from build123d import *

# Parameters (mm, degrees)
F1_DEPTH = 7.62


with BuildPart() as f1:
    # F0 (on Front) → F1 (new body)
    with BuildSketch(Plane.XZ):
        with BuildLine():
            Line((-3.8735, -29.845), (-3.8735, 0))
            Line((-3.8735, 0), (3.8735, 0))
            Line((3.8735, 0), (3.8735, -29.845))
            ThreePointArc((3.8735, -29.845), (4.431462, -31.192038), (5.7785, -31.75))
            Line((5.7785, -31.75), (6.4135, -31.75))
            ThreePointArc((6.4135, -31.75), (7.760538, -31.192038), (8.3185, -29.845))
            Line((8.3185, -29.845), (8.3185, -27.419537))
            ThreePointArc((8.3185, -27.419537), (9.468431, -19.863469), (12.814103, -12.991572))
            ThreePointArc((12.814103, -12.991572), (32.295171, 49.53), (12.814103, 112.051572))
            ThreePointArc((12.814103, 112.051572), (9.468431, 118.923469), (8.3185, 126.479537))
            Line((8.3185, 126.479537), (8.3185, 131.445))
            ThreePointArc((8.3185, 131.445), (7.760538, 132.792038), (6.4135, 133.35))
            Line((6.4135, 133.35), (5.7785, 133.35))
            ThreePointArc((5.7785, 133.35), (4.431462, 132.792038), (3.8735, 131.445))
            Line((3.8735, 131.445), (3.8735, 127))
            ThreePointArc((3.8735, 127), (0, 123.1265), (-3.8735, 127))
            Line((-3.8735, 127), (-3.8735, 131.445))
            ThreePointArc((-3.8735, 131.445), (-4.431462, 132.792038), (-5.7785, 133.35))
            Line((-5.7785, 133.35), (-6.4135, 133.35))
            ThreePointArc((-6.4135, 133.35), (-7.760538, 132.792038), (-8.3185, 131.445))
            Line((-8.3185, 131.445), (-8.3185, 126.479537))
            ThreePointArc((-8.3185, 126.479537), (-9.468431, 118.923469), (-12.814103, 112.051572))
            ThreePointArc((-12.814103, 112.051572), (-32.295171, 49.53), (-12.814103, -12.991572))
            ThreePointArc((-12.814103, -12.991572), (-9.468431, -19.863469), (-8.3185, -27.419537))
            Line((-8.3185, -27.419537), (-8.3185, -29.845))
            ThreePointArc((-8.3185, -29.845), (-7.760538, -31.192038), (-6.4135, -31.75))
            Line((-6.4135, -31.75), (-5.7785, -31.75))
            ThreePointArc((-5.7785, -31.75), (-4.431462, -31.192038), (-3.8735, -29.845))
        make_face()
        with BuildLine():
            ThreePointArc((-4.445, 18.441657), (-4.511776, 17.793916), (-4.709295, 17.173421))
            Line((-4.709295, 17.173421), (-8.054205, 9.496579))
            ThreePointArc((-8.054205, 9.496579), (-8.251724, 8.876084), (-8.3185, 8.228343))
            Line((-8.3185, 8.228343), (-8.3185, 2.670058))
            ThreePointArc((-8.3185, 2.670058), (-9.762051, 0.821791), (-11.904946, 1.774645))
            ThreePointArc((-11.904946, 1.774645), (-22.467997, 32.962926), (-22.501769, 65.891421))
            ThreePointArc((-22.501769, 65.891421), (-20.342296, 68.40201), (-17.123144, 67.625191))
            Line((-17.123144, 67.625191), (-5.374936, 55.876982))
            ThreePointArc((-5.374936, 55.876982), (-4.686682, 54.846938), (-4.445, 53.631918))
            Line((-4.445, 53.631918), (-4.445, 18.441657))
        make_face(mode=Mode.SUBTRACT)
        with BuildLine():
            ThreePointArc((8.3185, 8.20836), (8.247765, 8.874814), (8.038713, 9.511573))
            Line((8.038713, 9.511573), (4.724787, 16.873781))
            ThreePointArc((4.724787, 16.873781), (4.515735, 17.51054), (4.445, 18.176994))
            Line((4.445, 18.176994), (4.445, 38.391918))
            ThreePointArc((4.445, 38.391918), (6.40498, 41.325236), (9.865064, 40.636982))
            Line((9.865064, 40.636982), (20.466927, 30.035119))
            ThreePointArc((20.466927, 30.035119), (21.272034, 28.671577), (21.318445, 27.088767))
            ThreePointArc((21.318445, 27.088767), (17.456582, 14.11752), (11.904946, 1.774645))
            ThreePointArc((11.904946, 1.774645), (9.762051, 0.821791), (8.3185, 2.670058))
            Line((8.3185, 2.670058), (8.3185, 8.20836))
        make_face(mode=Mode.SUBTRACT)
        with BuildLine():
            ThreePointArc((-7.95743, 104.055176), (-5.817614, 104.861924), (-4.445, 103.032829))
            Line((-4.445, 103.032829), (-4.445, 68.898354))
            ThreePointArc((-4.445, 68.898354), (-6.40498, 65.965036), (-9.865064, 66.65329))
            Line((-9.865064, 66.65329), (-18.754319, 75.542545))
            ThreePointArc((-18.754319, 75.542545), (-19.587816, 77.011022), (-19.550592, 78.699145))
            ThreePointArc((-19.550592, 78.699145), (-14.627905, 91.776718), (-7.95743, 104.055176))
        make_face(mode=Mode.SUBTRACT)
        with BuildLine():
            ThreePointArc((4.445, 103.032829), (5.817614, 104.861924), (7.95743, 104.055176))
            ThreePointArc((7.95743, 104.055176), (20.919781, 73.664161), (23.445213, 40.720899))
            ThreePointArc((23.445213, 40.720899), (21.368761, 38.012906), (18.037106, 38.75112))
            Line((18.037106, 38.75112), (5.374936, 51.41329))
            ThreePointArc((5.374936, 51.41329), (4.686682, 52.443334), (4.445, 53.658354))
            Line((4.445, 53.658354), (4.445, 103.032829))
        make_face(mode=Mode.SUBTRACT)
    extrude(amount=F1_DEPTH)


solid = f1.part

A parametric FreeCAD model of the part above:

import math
import FreeCAD as App
import Part
import Sketcher

V = App.Vector
Q = App.Units.Quantity

doc = App.newDocument("Part")
body = doc.addObject("PartDesign::Body", "Body")

# Sketch on XZ plane
sketch1 = body.newObject("Sketcher::SketchObject", "Sketch")
sketch1.AttachmentSupport = (doc.getObject("XZ_Plane"), [""])
sketch1.MapMode = "FlatFace"
sketch1.addGeometry([
    Part.LineSegment(V(-3.8735, -29.845, 0), V(-3.8735, 0, 0)),  # 0
    Part.LineSegment(V(-3.8735, 0, 0), V(3.8735, 0, 0)),  # 1
    Part.LineSegment(V(3.8735, 0, 0), V(3.8735, -29.845, 0)),  # 2
    Part.ArcOfCircle(Part.Circle(V(5.778501, -29.844999, 0), V(0, 0, 1), 1.905001), math.radians(-179.999957), math.radians(-90.000043)),  # 3
    Part.LineSegment(V(5.7785, -31.75, 0), V(6.4135, -31.75, 0)),  # 4
    Part.ArcOfCircle(Part.Circle(V(6.413499, -29.844999, 0), V(0, 0, 1), 1.905001), math.radians(-89.999957), math.radians(-0.000043)),  # 5
    Part.LineSegment(V(8.3185, -29.845, 0), V(8.3185, -27.419537, 0)),  # 6
    Part.ArcOfCircle(Part.Circle(V(33.718493, -27.419535, 0), V(0, 0, 1), 25.399993), math.radians(145.38702), math.radians(180.000004)),  # 7
    Part.ArcOfCircle(Part.Circle(V(-77.772177, 49.53, 0), V(0, 0, 1), 110.067348), math.radians(-34.612976), math.radians(34.612976)),  # 8
    Part.ArcOfCircle(Part.Circle(V(33.718493, 126.479535, 0), V(0, 0, 1), 25.399993), math.radians(179.999996), math.radians(214.61298)),  # 9
    Part.LineSegment(V(8.3185, 126.479537, 0), V(8.3185, 131.445, 0)),  # 10
    Part.ArcOfCircle(Part.Circle(V(6.413499, 131.444999, 0), V(0, 0, 1), 1.905001), math.radians(0.000043), math.radians(89.999957)),  # 11
    Part.LineSegment(V(6.4135, 133.35, 0), V(5.7785, 133.35, 0)),  # 12
    Part.ArcOfCircle(Part.Circle(V(5.778501, 131.444999, 0), V(0, 0, 1), 1.905001), math.radians(90.000043), math.radians(179.999957)),  # 13
    Part.LineSegment(V(3.8735, 131.445, 0), V(3.8735, 127, 0)),  # 14
    Part.ArcOfCircle(Part.Circle(V(0, 127, 0), V(0, 0, 1), 3.8735), math.radians(180), math.radians(360)),  # 15
    Part.LineSegment(V(-3.8735, 127, 0), V(-3.8735, 131.445, 0)),  # 16
    Part.ArcOfCircle(Part.Circle(V(-5.778501, 131.444999, 0), V(0, 0, 1), 1.905001), math.radians(0.000043), math.radians(89.999957)),  # 17
    Part.LineSegment(V(-5.7785, 133.35, 0), V(-6.4135, 133.35, 0)),  # 18
    Part.ArcOfCircle(Part.Circle(V(-6.413499, 131.444999, 0), V(0, 0, 1), 1.905001), math.radians(90.000043), math.radians(179.999957)),  # 19
    Part.LineSegment(V(-8.3185, 131.445, 0), V(-8.3185, 126.479537, 0)),  # 20
    Part.ArcOfCircle(Part.Circle(V(-33.718493, 126.479535, 0), V(0, 0, 1), 25.399993), math.radians(-34.61298), math.radians(0.000004)),  # 21
    Part.ArcOfCircle(Part.Circle(V(77.772177, 49.53, 0), V(0, 0, 1), 110.067348), math.radians(145.387024), math.radians(214.612976)),  # 22
    Part.ArcOfCircle(Part.Circle(V(-33.718493, -27.419535, 0), V(0, 0, 1), 25.399993), math.radians(-0.000004), math.radians(34.61298)),  # 23
    Part.LineSegment(V(-8.3185, -27.419537, 0), V(-8.3185, -29.845, 0)),  # 24
    Part.ArcOfCircle(Part.Circle(V(-6.413499, -29.844999, 0), V(0, 0, 1), 1.905001), math.radians(-179.999957), math.radians(-90.000043)),  # 25
    Part.LineSegment(V(-6.4135, -31.75, 0), V(-5.7785, -31.75, 0)),  # 26
    Part.ArcOfCircle(Part.Circle(V(-5.778501, -29.844999, 0), V(0, 0, 1), 1.905001), math.radians(-89.999957), math.radians(-0.000043)),  # 27
    Part.LineSegment(V(-4.445, 53.631918, 0), V(-4.445, 18.441657, 0)),  # 28
    Part.ArcOfCircle(Part.Circle(V(-7.620005, 18.441658, 0), V(0, 0, 1), 3.175005), math.radians(-23.543421), math.radians(-0.000012)),  # 29
    Part.LineSegment(V(-4.709295, 17.173421, 0), V(-8.054205, 9.496579, 0)),  # 30
    Part.ArcOfCircle(Part.Circle(V(-5.143495, 8.228342, 0), V(0, 0, 1), 3.175005), math.radians(156.456579), math.radians(179.999988)),  # 31
    Part.LineSegment(V(-8.3185, 8.228343, 0), V(-8.3185, 2.670058, 0)),  # 32
    Part.ArcOfCircle(Part.Circle(V(-10.2235, 2.670058, 0), V(0, 0, 1), 1.905), math.radians(-151.963568), math.radians(0.000011)),  # 33
    Part.ArcOfCircle(Part.Circle(V(77.772168, 49.529999, 0), V(0, 0, 1), 101.599993), math.radians(170.732871), math.radians(208.036441)),  # 34
    Part.ArcOfCircle(Part.Circle(V(-19.368208, 65.380127, 0), V(0, 0, 1), 3.175), math.radians(45.000004), math.radians(170.732874)),  # 35
    Part.LineSegment(V(-17.123144, 67.625191, 0), V(-5.374936, 55.876982, 0)),  # 36
    Part.ArcOfCircle(Part.Circle(V(-7.619994, 53.631921, 0), V(0, 0, 1), 3.174994), math.radians(-0.000045), math.radians(45.000047)),  # 37
    Part.LineSegment(V(8.3185, 2.670058, 0), V(8.3185, 8.20836, 0)),  # 38
    Part.ArcOfCircle(Part.Circle(V(5.143489, 8.208357, 0), V(0, 0, 1), 3.175011), math.radians(0.00006), math.radians(24.233762)),  # 39
    Part.LineSegment(V(8.038713, 9.511573, 0), V(4.724787, 16.873781, 0)),  # 40
    Part.ArcOfCircle(Part.Circle(V(7.620011, 18.176997, 0), V(0, 0, 1), 3.175011), math.radians(-179.99994), math.radians(-155.766238)),  # 41
    Part.LineSegment(V(4.445, 18.176994, 0), V(4.445, 38.391918, 0)),  # 42
    Part.ArcOfCircle(Part.Circle(V(7.62, 38.391919, 0), V(0, 0, 1), 3.175), math.radians(44.999986), math.radians(180.000014)),  # 43
    Part.LineSegment(V(9.865064, 40.636982, 0), V(20.466927, 30.035119, 0)),  # 44
    Part.ArcOfCircle(Part.Circle(V(18.221862, 27.790055, 0), V(0, 0, 1), 3.175001), math.radians(-12.760606), math.radians(44.999993)),  # 45
    Part.ArcOfCircle(Part.Circle(V(-77.772194, 49.530006, 0), V(0, 0, 1), 101.60002), math.radians(-28.036438), math.radians(-12.760625)),  # 46
    Part.ArcOfCircle(Part.Circle(V(10.2235, 2.670058, 0), V(0, 0, 1), 1.905), math.radians(179.999989), math.radians(331.963568)),  # 47
    Part.ArcOfCircle(Part.Circle(V(77.772188, 49.529994, 0), V(0, 0, 1), 101.600014), math.radians(147.543095), math.radians(163.315709)),  # 48
    Part.ArcOfCircle(Part.Circle(V(-6.35, 103.032828, 0), V(0, 0, 1), 1.905), math.radians(0.000015), math.radians(147.543079)),  # 49
    Part.LineSegment(V(-4.445, 103.032829, 0), V(-4.445, 68.898354, 0)),  # 50
    Part.ArcOfCircle(Part.Circle(V(-7.62, 68.898353, 0), V(0, 0, 1), 3.175), math.radians(-135.000014), math.radians(0.000014)),  # 51
    Part.LineSegment(V(-9.865064, 66.65329, 0), V(-18.754319, 75.542545, 0)),  # 52
    Part.ArcOfCircle(Part.Circle(V(-16.509254, 77.78761, 0), V(0, 0, 1), 3.175002), math.radians(163.315733), math.radians(224.999994)),  # 53
    Part.LineSegment(V(4.445, 53.658354, 0), V(4.445, 103.032829, 0)),  # 54
    Part.ArcOfCircle(Part.Circle(V(6.35, 103.032828, 0), V(0, 0, 1), 1.905), math.radians(32.456921), math.radians(179.999985)),  # 55
    Part.ArcOfCircle(Part.Circle(V(-77.772178, 49.53, 0), V(0, 0, 1), 101.600003), math.radians(-4.974004), math.radians(32.456905)),  # 56
    Part.ArcOfCircle(Part.Circle(V(20.28217, 40.996183, 0), V(0, 0, 1), 3.174999), math.radians(-135.000016), math.radians(-4.973997)),  # 57
    Part.LineSegment(V(18.037106, 38.75112, 0), V(5.374936, 51.41329, 0)),  # 58
    Part.ArcOfCircle(Part.Circle(V(7.619994, 53.658351, 0), V(0, 0, 1), 3.174994), math.radians(179.999955), math.radians(225.000047)),  # 59
], False)
sketch1.addConstraint([
    Sketcher.Constraint("Coincident", 0, 2, 1, 1),
    Sketcher.Constraint("Coincident", 1, 2, 2, 1),
    Sketcher.Constraint("Coincident", 2, 2, 3, 1),
    Sketcher.Constraint("Coincident", 3, 2, 4, 1),
    Sketcher.Constraint("Coincident", 4, 2, 5, 1),
    Sketcher.Constraint("Coincident", 5, 2, 6, 1),
    Sketcher.Constraint("Coincident", 6, 2, 7, 2),
    Sketcher.Constraint("Coincident", 7, 1, 8, 1),
    Sketcher.Constraint("Coincident", 8, 2, 9, 2),
    Sketcher.Constraint("Coincident", 9, 1, 10, 1),
    Sketcher.Constraint("Coincident", 10, 2, 11, 1),
    Sketcher.Constraint("Coincident", 11, 2, 12, 1),
    Sketcher.Constraint("Coincident", 12, 2, 13, 1),
    Sketcher.Constraint("Coincident", 13, 2, 14, 1),
    Sketcher.Constraint("Coincident", 14, 2, 15, 2),
    Sketcher.Constraint("Coincident", 15, 1, 16, 1),
    Sketcher.Constraint("Coincident", 16, 2, 17, 1),
    Sketcher.Constraint("Coincident", 17, 2, 18, 1),
    Sketcher.Constraint("Coincident", 18, 2, 19, 1),
    Sketcher.Constraint("Coincident", 19, 2, 20, 1),
    Sketcher.Constraint("Coincident", 20, 2, 21, 2),
    Sketcher.Constraint("Coincident", 21, 1, 22, 1),
    Sketcher.Constraint("Coincident", 22, 2, 23, 2),
    Sketcher.Constraint("Coincident", 23, 1, 24, 1),
    Sketcher.Constraint("Coincident", 24, 2, 25, 1),
    Sketcher.Constraint("Coincident", 25, 2, 26, 1),
    Sketcher.Constraint("Coincident", 26, 2, 27, 1),
    Sketcher.Constraint("Coincident", 27, 2, 0, 1),
    Sketcher.Constraint("Coincident", 28, 2, 29, 2),
    Sketcher.Constraint("Coincident", 29, 1, 30, 1),
    Sketcher.Constraint("Coincident", 30, 2, 31, 1),
    Sketcher.Constraint("Coincident", 31, 2, 32, 1),
    Sketcher.Constraint("Coincident", 32, 2, 33, 2),
    Sketcher.Constraint("Coincident", 33, 1, 34, 2),
    Sketcher.Constraint("Coincident", 34, 1, 35, 2),
    Sketcher.Constraint("Coincident", 35, 1, 36, 1),
    Sketcher.Constraint("Coincident", 36, 2, 37, 2),
    Sketcher.Constraint("Coincident", 37, 1, 28, 1),
    Sketcher.Constraint("Coincident", 38, 2, 39, 1),
    Sketcher.Constraint("Coincident", 39, 2, 40, 1),
    Sketcher.Constraint("Coincident", 40, 2, 41, 2),
    Sketcher.Constraint("Coincident", 41, 1, 42, 1),
    Sketcher.Constraint("Coincident", 42, 2, 43, 2),
    Sketcher.Constraint("Coincident", 43, 1, 44, 1),
    Sketcher.Constraint("Coincident", 44, 2, 45, 2),
    Sketcher.Constraint("Coincident", 45, 1, 46, 2),
    Sketcher.Constraint("Coincident", 46, 1, 47, 2),
    Sketcher.Constraint("Coincident", 47, 1, 38, 1),
    Sketcher.Constraint("Coincident", 48, 1, 49, 2),
    Sketcher.Constraint("Coincident", 49, 1, 50, 1),
    Sketcher.Constraint("Coincident", 50, 2, 51, 2),
    Sketcher.Constraint("Coincident", 51, 1, 52, 1),
    Sketcher.Constraint("Coincident", 52, 2, 53, 2),
    Sketcher.Constraint("Coincident", 53, 1, 48, 2),
    Sketcher.Constraint("Coincident", 54, 2, 55, 2),
    Sketcher.Constraint("Coincident", 55, 1, 56, 2),
    Sketcher.Constraint("Coincident", 56, 1, 57, 2),
    Sketcher.Constraint("Coincident", 57, 1, 58, 1),
    Sketcher.Constraint("Coincident", 58, 2, 59, 2),
    Sketcher.Constraint("Coincident", 59, 1, 54, 1),
    Sketcher.Constraint("Vertical", 0),
    Sketcher.Constraint("Horizontal", 1),
    Sketcher.Constraint("Vertical", 2),
    Sketcher.Constraint("Horizontal", 4),
    Sketcher.Constraint("Vertical", 6),
    Sketcher.Constraint("Vertical", 10),
    Sketcher.Constraint("Horizontal", 12),
    Sketcher.Constraint("Vertical", 14),
    Sketcher.Constraint("Vertical", 16),
    Sketcher.Constraint("Horizontal", 18),
    Sketcher.Constraint("Vertical", 20),
    Sketcher.Constraint("Vertical", 24),
    Sketcher.Constraint("Horizontal", 26),
    Sketcher.Constraint("Vertical", 28),
    Sketcher.Constraint("Vertical", 32),
    Sketcher.Constraint("Vertical", 38),
    Sketcher.Constraint("Vertical", 42),
    Sketcher.Constraint("Vertical", 50),
    Sketcher.Constraint("Vertical", 54),
    Sketcher.Constraint("Coincident", 34, 3, 22, 3),
    Sketcher.Constraint("Coincident", 56, 3, 8, 3),
    Sketcher.Constraint("PointOnObject", 15, 3, -2),
    Sketcher.Constraint("PointOnObject", 0, 2, -1),
    Sketcher.Constraint("Radius", 56, Q("4.0000001 in")),
    Sketcher.Constraint("DistanceY", -1, 1, 15, 3, Q("5 in")),
    Sketcher.Constraint("DistanceY", -1, 1, 14, 2, Q("5 in")),
    Sketcher.Constraint("DistanceY", -1, 1, 15, 1, Q("5 in")),
    Sketcher.Constraint("Radius", 3, Q("0.0750001 in")),
    Sketcher.Constraint("Radius", 5, Q("0.0750001 in")),
    Sketcher.Constraint("Radius", 11, Q("0.0750001 in")),
    Sketcher.Constraint("Radius", 13, Q("0.0750001 in")),
    Sketcher.Constraint("Radius", 17, Q("0.0750001 in")),
    Sketcher.Constraint("Radius", 19, Q("0.0750001 in")),
    Sketcher.Constraint("Radius", 25, Q("0.0750001 in")),
    Sketcher.Constraint("Radius", 27, Q("0.0750001 in")),
    Sketcher.Constraint("Radius", 33, Q("0.075 in")),
    Sketcher.Constraint("Radius", 35, Q("0.125 in")),
    Sketcher.Constraint("Radius", 43, Q("0.125 in")),
    Sketcher.Constraint("Radius", 45, Q("0.125 in")),
    Sketcher.Constraint("Radius", 47, Q("0.075 in")),
    Sketcher.Constraint("Radius", 49, Q("0.075 in")),
    Sketcher.Constraint("Radius", 51, Q("0.125 in")),
    Sketcher.Constraint("Radius", 53, Q("0.1250001 in")),
    Sketcher.Constraint("Radius", 55, Q("0.075 in")),
    Sketcher.Constraint("Radius", 57, Q("0.125 in")),
    Sketcher.Constraint("DistanceX", -1, 1, 43, 3, Q("0.3 in")),
    Sketcher.Constraint("DistanceX", 51, 3, -1, 1, Q("0.3 in")),
    Sketcher.Constraint("Radius", 15, Q("0.1525 in")),
    Sketcher.Constraint("DistanceX", 1, 1, 1, 2, Q("0.305 in")),
    Sketcher.Constraint("DistanceX", 4, 1, 4, 2, Q("0.025 in")),
    Sketcher.Constraint("DistanceX", 12, 2, 12, 1, Q("0.025 in")),
    Sketcher.Constraint("DistanceX", 18, 2, 18, 1, Q("0.025 in")),
    Sketcher.Constraint("DistanceX", 26, 1, 26, 2, Q("0.025 in")),
    Sketcher.Constraint("DistanceY", 0, 1, 0, 2, Q("1.175 in")),
    Sketcher.Constraint("DistanceY", 2, 2, 2, 1, Q("1.175 in")),
    Sketcher.Constraint("DistanceY", 14, 2, 14, 1, Q("0.175 in")),
    Sketcher.Constraint("DistanceY", 16, 1, 16, 2, Q("0.175 in")),
    Sketcher.Constraint("DistanceY", -1, 1, 8, 3, Q("1.95 in")),
    Sketcher.Constraint("DistanceY", -1, 1, 22, 3, Q("1.95 in")),
    Sketcher.Constraint("DistanceX", -1, 1, 55, 3, Q("0.25 in")),
    Sketcher.Constraint("DistanceY", 3, 2, -1, 1, Q("1.25 in")),
    Sketcher.Constraint("DistanceY", -1, 1, 11, 2, Q("5.25 in")),
    Sketcher.Constraint("DistanceY", -1, 1, 17, 2, Q("5.25 in")),
    Sketcher.Constraint("DistanceY", 25, 2, -1, 1, Q("1.25 in")),
    Sketcher.Constraint("DistanceY", 5, 2, -1, 1, Q("1.175 in")),
    Sketcher.Constraint("DistanceY", -1, 1, 10, 2, Q("5.175 in")),
    Sketcher.Constraint("DistanceY", -1, 1, 19, 2, Q("5.175 in")),
    Sketcher.Constraint("DistanceY", 24, 2, -1, 1, Q("1.175 in")),
    Sketcher.Constraint("DistanceX", 28, 2, -1, 1, Q("0.175 in")),
    Sketcher.Constraint("Radius", 39, Q("3.175011 mm")),
    Sketcher.Constraint("Radius", 41, Q("3.175011 mm")),
    Sketcher.Constraint("Radius", 46, Q("101.60002 mm")),
    Sketcher.Constraint("DistanceX", -1, 1, 3, 3, Q("0.2275001 in")),
    Sketcher.Constraint("DistanceX", -1, 1, 5, 3, Q("0.2524999 in")),
    Sketcher.Constraint("DistanceX", -1, 1, 11, 3, Q("0.2524999 in")),
    Sketcher.Constraint("DistanceX", 19, 3, -1, 1, Q("0.2524999 in")),
    Sketcher.Constraint("DistanceX", 25, 3, -1, 1, Q("0.2524999 in")),
    Sketcher.Constraint("DistanceX", 33, 3, -1, 1, Q("0.4025 in")),
    Sketcher.Constraint("DistanceX", -1, 1, 47, 3, Q("0.4025 in")),
    Sketcher.Constraint("DistanceX", -1, 1, 3, 2, Q("0.2275 in")),
    Sketcher.Constraint("DistanceX", -1, 1, 11, 2, Q("0.2525 in")),
    Sketcher.Constraint("DistanceX", 17, 2, -1, 1, Q("0.2275 in")),
    Sketcher.Constraint("DistanceX", 25, 2, -1, 1, Q("0.2525 in")),
    Sketcher.Constraint("Radius", 7, Q("25.399993 mm")),
    Sketcher.Constraint("Radius", 8, Q("110.067348 mm")),
    Sketcher.Constraint("Radius", 9, Q("25.399993 mm")),
    Sketcher.Constraint("Radius", 21, Q("25.399993 mm")),
    Sketcher.Constraint("Radius", 22, Q("110.067348 mm")),
    Sketcher.Constraint("Radius", 23, Q("25.399993 mm")),
    Sketcher.Constraint("Radius", 29, Q("3.175005 mm")),
    Sketcher.Constraint("Radius", 31, Q("3.175005 mm")),
    Sketcher.Constraint("Radius", 34, Q("101.599993 mm")),
    Sketcher.Constraint("Radius", 37, Q("3.174994 mm")),
    Sketcher.Constraint("Radius", 48, Q("101.600014 mm")),
    Sketcher.Constraint("Radius", 59, Q("3.174994 mm")),
    Sketcher.Constraint("Distance", 44, Q("14.993298 mm")),
    Sketcher.Constraint("DistanceY", 28, 2, 28, 1, Q("35.190261 mm")),
    Sketcher.Constraint("DistanceY", -1, 1, 56, 1, Q("40.720899 mm")),
    Sketcher.Constraint("DistanceY", 6, 1, 6, 2, Q("2.425463 mm")),
    Sketcher.Constraint("DistanceY", 10, 1, 10, 2, Q("4.965463 mm")),
    Sketcher.Constraint("DistanceY", 20, 2, 20, 1, Q("4.965463 mm")),
    Sketcher.Constraint("DistanceY", 24, 2, 24, 1, Q("2.425463 mm")),
    Sketcher.Constraint("DistanceY", 32, 2, 32, 1, Q("5.558285 mm")),
    Sketcher.Constraint("DistanceY", 38, 1, 38, 2, Q("5.538302 mm")),
    Sketcher.Constraint("DistanceY", 42, 1, 42, 2, Q("20.214924 mm")),
    Sketcher.Constraint("DistanceY", 50, 2, 50, 1, Q("34.134475 mm")),
    Sketcher.Constraint("DistanceY", 54, 1, 54, 2, Q("49.374475 mm")),
    Sketcher.Constraint("DistanceX", -1, 1, 34, 3, Q("77.772168 mm")),
    Sketcher.Constraint("DistanceX", 35, 3, -1, 1, Q("19.368208 mm")),
    Sketcher.Constraint("DistanceY", -1, 1, 37, 3, Q("53.631921 mm")),
    Sketcher.Constraint("DistanceY", -1, 1, 43, 3, Q("38.391919 mm")),
    Sketcher.Constraint("DistanceX", -1, 1, 48, 3, Q("77.772188 mm")),
    Sketcher.Constraint("DistanceY", -1, 1, 49, 3, Q("103.032828 mm")),
    Sketcher.Constraint("DistanceY", -1, 1, 53, 3, Q("77.78761 mm")),
    Sketcher.Constraint("DistanceY", -1, 1, 55, 3, Q("103.032828 mm")),
    Sketcher.Constraint("DistanceX", -1, 1, 57, 3, Q("20.28217 mm")),
    Sketcher.Constraint("DistanceY", -1, 1, 59, 3, Q("53.658351 mm")),
    Sketcher.Constraint("DistanceY", 7, 1, -1, 1, Q("12.991572 mm")),
    Sketcher.Constraint("DistanceY", -1, 1, 21, 1, Q("112.051572 mm")),
    Sketcher.Constraint("DistanceY", -1, 1, 29, 1, Q("17.173421 mm")),
    Sketcher.Constraint("DistanceY", -1, 1, 30, 2, Q("9.496579 mm")),
    Sketcher.Constraint("DistanceY", -1, 1, 32, 2, Q("2.670058 mm")),
    Sketcher.Constraint("DistanceX", 34, 1, -1, 1, Q("22.501769 mm")),
    Sketcher.Constraint("DistanceY", -1, 1, 35, 1, Q("67.625191 mm")),
    Sketcher.Constraint("DistanceY", -1, 1, 36, 2, Q("55.876982 mm")),
    Sketcher.Constraint("DistanceY", -1, 1, 38, 2, Q("8.20836 mm")),
    Sketcher.Constraint("DistanceY", -1, 1, 40, 2, Q("16.873781 mm")),
    Sketcher.Constraint("DistanceY", -1, 1, 44, 2, Q("30.035119 mm")),
    Sketcher.Constraint("DistanceX", 48, 1, -1, 1, Q("7.95743 mm")),
    Sketcher.Constraint("DistanceY", -1, 1, 49, 1, Q("103.032829 mm")),
    Sketcher.Constraint("DistanceY", -1, 1, 51, 1, Q("66.65329 mm")),
    Sketcher.Constraint("DistanceX", 52, 2, -1, 1, Q("18.754319 mm")),
    Sketcher.Constraint("DistanceY", -1, 1, 54, 2, Q("103.032829 mm")),
    Sketcher.Constraint("DistanceX", -1, 1, 55, 1, Q("7.95743 mm")),
    Sketcher.Constraint("DistanceY", -1, 1, 57, 1, Q("38.75112 mm")),
    Sketcher.Constraint("DistanceY", -1, 1, 58, 2, Q("51.41329 mm")),
    Sketcher.Constraint("Distance", 30, Q("8.373907 mm")),
    Sketcher.Constraint("Distance", 40, Q("8.073674 mm")),
    Sketcher.Constraint("Distance", 52, Q("12.571305 mm")),
    Sketcher.Constraint("DistanceY", -1, 1, 29, 3, Q("18.441658 mm")),
    Sketcher.Constraint("DistanceY", -1, 1, 39, 3, Q("8.208357 mm")),
    Sketcher.Constraint("DistanceY", -1, 1, 41, 3, Q("18.176997 mm")),
    Sketcher.Constraint("DistanceX", -1, 1, 45, 3, Q("18.221862 mm")),
    Sketcher.Constraint("DistanceY", -1, 1, 45, 3, Q("27.790055 mm")),
    Sketcher.Constraint("DistanceX", 46, 3, -1, 1, Q("77.772194 mm")),
    Sketcher.Constraint("DistanceX", -1, 1, 8, 2, Q("12.814103 mm")),
    Sketcher.Constraint("DistanceX", 22, 2, -1, 1, Q("12.814103 mm")),
    Sketcher.Constraint("DistanceY", -1, 1, 28, 2, Q("18.441657 mm")),
    Sketcher.Constraint("DistanceX", 33, 1, -1, 1, Q("11.904946 mm")),
    Sketcher.Constraint("DistanceY", -1, 1, 41, 1, Q("18.176994 mm")),
    Sketcher.Constraint("DistanceX", -1, 1, 45, 1, Q("21.318445 mm")),
    Sketcher.Constraint("DistanceX", -1, 1, 46, 1, Q("11.904946 mm")),
    Sketcher.Constraint("DistanceX", 53, 1, -1, 1, Q("19.550592 mm")),
])
pad1 = body.newObject("PartDesign::Pad", "Pad")
pad1.Profile = sketch1
pad1.Length = Q("0.3 in")

doc.recompute()
